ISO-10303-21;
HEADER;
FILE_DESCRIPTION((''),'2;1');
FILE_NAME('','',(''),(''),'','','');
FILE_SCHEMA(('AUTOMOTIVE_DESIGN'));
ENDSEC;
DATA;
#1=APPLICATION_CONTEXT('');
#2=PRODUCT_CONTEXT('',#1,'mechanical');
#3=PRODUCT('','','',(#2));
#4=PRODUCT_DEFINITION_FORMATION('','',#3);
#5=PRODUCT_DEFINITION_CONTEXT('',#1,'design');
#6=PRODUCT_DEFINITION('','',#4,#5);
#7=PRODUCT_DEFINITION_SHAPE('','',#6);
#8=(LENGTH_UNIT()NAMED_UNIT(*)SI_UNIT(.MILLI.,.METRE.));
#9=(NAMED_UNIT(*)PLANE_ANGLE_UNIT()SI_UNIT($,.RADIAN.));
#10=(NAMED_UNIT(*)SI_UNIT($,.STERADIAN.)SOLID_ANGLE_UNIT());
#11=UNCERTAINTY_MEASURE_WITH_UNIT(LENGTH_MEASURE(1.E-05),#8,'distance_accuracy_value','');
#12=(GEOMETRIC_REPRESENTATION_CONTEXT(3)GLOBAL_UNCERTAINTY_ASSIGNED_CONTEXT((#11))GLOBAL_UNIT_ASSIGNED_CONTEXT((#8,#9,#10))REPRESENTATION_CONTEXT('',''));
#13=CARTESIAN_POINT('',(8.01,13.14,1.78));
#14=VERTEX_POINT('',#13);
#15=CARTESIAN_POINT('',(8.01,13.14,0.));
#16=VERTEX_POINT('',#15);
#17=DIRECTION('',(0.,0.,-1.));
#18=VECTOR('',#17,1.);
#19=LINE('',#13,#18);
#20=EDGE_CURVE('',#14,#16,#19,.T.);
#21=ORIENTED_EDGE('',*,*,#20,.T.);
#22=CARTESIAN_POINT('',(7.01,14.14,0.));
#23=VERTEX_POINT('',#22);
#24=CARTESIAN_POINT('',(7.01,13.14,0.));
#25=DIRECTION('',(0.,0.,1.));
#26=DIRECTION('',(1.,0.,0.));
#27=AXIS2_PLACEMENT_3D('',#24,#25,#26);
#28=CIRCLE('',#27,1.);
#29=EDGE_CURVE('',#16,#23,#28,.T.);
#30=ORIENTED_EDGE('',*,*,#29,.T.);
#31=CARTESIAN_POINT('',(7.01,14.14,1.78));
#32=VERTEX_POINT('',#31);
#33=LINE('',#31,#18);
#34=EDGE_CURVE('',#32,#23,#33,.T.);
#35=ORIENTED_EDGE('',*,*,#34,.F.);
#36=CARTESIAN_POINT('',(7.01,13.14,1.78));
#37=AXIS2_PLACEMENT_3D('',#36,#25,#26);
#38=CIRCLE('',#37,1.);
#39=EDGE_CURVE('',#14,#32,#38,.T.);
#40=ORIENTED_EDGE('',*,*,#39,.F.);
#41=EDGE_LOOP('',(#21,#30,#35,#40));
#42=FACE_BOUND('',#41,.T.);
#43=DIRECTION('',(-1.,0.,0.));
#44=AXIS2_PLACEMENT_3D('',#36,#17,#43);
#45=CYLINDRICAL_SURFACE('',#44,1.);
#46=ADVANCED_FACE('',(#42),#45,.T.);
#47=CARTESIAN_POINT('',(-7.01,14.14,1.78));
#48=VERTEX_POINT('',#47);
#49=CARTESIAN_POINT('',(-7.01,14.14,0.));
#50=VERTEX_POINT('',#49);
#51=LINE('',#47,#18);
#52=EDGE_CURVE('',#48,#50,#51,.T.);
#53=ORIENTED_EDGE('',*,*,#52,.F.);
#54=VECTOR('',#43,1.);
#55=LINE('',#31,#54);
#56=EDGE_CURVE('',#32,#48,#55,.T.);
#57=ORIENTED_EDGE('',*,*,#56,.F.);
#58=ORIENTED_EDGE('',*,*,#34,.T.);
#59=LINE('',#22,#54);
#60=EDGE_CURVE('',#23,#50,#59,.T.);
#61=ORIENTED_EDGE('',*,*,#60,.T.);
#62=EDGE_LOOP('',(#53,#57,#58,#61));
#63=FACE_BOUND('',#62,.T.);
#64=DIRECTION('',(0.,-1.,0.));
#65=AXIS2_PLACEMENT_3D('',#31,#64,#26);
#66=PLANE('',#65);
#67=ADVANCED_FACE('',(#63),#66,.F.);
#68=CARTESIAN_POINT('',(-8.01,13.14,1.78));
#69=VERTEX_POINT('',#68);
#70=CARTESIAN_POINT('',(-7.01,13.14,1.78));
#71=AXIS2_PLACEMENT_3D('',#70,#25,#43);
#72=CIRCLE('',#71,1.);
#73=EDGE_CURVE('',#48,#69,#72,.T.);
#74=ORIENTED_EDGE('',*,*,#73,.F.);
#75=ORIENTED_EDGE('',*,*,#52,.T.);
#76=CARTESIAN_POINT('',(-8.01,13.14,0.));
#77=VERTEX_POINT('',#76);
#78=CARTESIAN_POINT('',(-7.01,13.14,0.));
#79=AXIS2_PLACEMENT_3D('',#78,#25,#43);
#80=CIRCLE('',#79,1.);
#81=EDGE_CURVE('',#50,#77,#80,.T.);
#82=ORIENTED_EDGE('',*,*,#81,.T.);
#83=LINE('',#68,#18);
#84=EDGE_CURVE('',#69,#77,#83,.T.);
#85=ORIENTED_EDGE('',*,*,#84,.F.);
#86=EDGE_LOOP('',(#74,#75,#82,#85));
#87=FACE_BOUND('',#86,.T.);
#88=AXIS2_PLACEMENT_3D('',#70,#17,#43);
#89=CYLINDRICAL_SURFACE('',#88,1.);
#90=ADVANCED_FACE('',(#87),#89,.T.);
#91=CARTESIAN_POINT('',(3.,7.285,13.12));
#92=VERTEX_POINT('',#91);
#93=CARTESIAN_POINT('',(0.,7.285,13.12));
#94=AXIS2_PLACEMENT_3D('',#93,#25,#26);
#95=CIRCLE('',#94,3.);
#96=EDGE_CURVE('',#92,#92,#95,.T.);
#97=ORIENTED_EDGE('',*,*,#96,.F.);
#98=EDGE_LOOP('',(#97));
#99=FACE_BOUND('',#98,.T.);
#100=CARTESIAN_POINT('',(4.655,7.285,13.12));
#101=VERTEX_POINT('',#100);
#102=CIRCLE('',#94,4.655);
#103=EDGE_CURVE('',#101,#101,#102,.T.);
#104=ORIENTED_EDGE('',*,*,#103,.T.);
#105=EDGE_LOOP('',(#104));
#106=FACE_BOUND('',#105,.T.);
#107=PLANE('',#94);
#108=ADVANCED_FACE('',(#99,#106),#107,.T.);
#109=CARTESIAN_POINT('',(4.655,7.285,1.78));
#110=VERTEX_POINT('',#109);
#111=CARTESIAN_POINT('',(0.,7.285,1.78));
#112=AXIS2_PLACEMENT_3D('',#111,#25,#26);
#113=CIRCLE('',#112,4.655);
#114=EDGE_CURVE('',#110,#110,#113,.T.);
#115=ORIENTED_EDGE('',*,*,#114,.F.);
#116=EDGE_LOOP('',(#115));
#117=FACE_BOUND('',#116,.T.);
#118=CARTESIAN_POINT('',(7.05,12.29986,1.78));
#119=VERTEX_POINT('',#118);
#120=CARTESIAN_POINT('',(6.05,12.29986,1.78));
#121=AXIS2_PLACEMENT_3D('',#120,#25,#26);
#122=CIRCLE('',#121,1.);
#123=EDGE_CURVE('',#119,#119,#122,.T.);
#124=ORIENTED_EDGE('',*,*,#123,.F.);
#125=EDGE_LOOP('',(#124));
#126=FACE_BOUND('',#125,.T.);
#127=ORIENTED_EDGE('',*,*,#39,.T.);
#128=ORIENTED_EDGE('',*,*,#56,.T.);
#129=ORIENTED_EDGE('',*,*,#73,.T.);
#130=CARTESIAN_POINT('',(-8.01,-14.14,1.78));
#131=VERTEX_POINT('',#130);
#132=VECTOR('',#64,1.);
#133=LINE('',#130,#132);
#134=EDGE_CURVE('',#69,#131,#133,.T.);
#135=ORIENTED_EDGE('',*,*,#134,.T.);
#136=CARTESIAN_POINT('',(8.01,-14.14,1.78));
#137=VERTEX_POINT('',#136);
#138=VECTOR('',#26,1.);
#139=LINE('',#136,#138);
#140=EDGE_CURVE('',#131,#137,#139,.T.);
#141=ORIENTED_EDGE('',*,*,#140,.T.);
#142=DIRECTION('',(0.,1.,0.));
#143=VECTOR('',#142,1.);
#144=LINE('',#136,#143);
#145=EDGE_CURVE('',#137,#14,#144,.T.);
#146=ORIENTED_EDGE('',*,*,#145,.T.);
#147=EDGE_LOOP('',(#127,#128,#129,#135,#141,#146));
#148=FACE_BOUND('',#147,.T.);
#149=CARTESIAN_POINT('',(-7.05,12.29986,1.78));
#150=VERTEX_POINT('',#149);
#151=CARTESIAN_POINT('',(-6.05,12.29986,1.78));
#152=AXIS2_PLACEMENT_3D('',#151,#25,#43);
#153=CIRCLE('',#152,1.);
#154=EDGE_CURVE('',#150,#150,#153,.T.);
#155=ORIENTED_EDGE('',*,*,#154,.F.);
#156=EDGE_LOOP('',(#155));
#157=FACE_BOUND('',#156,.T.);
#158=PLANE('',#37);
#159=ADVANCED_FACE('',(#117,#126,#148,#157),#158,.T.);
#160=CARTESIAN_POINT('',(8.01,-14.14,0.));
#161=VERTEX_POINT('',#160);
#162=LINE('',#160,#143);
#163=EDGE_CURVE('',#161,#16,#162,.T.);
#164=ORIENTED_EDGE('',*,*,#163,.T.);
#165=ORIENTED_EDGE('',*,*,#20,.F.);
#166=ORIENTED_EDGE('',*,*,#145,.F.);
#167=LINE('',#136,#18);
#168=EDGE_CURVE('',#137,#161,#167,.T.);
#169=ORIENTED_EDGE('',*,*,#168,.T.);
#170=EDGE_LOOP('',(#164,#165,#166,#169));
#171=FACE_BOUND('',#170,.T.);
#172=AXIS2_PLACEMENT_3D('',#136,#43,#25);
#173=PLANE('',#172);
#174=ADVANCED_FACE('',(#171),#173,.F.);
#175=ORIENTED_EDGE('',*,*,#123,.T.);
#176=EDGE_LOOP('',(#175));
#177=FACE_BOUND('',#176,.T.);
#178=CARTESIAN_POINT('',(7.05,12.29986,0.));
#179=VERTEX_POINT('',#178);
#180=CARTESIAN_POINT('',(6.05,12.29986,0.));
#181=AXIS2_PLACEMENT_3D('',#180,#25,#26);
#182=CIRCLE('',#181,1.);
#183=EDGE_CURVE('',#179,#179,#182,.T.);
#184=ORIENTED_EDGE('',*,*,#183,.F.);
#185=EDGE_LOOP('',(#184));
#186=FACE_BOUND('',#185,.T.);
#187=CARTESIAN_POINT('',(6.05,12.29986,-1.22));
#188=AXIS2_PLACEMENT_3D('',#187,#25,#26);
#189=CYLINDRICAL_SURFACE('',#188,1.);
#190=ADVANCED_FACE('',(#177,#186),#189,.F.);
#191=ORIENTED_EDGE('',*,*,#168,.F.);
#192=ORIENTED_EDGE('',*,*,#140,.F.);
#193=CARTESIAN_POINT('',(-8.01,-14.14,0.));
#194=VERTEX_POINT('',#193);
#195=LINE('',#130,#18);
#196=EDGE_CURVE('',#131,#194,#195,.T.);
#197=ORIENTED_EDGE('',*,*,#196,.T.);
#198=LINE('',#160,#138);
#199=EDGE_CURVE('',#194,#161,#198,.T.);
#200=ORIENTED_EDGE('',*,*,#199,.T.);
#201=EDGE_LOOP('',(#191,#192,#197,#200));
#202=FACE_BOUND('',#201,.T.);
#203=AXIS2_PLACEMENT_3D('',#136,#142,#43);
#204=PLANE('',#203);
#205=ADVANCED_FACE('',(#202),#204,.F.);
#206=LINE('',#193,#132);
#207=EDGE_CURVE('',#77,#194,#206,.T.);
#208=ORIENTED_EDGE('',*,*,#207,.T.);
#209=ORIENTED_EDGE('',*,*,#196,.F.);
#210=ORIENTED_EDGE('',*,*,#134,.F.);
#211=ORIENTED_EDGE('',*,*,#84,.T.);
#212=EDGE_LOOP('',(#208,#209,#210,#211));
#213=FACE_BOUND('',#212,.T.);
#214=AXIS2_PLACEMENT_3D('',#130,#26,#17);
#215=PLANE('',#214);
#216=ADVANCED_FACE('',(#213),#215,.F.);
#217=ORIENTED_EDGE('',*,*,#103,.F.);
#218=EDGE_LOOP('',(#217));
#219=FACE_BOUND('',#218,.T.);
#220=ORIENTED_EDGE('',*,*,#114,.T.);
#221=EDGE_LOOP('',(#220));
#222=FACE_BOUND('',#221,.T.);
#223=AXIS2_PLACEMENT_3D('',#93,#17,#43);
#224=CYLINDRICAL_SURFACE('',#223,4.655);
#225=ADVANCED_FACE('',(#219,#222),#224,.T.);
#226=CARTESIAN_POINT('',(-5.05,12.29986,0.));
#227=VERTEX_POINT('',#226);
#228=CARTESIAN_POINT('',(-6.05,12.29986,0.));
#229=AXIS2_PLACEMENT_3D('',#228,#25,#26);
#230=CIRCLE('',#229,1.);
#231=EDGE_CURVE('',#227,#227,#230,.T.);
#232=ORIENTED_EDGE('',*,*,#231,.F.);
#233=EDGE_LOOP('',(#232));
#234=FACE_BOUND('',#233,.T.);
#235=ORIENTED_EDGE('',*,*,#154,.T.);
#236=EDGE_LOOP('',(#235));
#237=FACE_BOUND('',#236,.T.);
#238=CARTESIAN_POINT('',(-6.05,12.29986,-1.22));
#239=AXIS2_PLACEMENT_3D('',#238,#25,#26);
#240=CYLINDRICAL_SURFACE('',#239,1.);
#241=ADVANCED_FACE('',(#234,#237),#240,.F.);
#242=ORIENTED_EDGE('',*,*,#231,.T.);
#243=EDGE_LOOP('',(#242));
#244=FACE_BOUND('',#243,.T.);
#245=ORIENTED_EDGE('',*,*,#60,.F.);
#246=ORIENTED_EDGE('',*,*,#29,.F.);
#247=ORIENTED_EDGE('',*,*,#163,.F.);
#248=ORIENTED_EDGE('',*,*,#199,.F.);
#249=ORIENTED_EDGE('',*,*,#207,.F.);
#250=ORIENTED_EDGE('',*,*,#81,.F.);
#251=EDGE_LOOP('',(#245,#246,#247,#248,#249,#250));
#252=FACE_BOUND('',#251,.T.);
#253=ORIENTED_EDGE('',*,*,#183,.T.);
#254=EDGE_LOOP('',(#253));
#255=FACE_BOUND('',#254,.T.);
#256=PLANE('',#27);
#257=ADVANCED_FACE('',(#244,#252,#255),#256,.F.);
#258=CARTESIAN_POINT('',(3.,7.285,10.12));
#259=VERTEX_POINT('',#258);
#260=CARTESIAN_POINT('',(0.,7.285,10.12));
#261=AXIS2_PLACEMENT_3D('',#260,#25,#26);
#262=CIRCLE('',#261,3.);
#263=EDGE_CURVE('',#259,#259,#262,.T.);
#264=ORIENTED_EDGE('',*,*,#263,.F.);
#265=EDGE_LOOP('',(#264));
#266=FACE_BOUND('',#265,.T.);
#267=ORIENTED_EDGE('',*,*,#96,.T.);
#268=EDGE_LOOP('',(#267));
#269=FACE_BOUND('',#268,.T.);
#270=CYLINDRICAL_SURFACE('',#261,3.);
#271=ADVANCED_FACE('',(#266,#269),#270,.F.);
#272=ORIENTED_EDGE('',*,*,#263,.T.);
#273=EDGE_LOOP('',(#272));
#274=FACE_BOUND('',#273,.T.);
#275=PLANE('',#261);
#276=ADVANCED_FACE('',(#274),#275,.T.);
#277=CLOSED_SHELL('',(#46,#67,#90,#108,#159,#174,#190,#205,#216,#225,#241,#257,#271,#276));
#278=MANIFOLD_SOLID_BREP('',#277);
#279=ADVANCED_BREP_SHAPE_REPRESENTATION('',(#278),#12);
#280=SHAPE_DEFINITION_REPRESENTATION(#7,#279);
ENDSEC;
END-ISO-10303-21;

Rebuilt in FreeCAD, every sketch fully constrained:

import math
import FreeCAD as App
import Part
import Sketcher

V = App.Vector

doc = App.newDocument("Part")
body = doc.addObject("PartDesign::Body", "Body")

# Sketch on XY plane
sketch1 = doc.addObject("Sketcher::SketchObject", "Sketch")
body.addObject(sketch1)
sketch1.AttachmentSupport = (doc.XY_Plane, [""])
sketch1.MapMode = "FlatFace"
sketch1.addGeometry(Part.LineSegment(V(-8, -14.1, 0), V(8, -14.1, 0)), False)
sketch1.addGeometry(Part.LineSegment(V(8, -14.1, 0), V(8, 13.1, 0)), False)
sketch1.addGeometry(Part.ArcOfCircle(Part.Circle(V(7, 13.1, 0), V(0, 0, 1), 1), math.radians(0), math.radians(90)), False)
sketch1.addGeometry(Part.LineSegment(V(7, 14.1, 0), V(-7, 14.1, 0)), False)
sketch1.addGeometry(Part.ArcOfCircle(Part.Circle(V(-7, 13.1, 0), V(0, 0, 1), 1), math.radians(90), math.radians(180)), False)
sketch1.addGeometry(Part.LineSegment(V(-8, 13.1, 0), V(-8, -14.1, 0)), False)
sketch1.addConstraint(Sketcher.Constraint("Coincident", 0, 2, 1, 1))
sketch1.addConstraint(Sketcher.Constraint("Tangent", 1, 2, 2, 1))
sketch1.addConstraint(Sketcher.Constraint("Tangent", 2, 2, 3, 1))
sketch1.addConstraint(Sketcher.Constraint("Tangent", 3, 2, 4, 1))
sketch1.addConstraint(Sketcher.Constraint("Tangent", 4, 2, 5, 1))
sketch1.addConstraint(Sketcher.Constraint("Coincident", 5, 2, 0, 1))
sketch1.addConstraint(Sketcher.Constraint("Horizontal", 0))
sketch1.addConstraint(Sketcher.Constraint("Vertical", 1))
sketch1.addConstraint(Sketcher.Constraint("Horizontal", 3))
sketch1.addConstraint(Sketcher.Constraint("Vertical", 5))
sketch1.addConstraint(Sketcher.Constraint("Equal", 2, 4))
sketch1.addConstraint(Sketcher.Constraint("Radius", 2, 1.0))
sketch1.addConstraint(Sketcher.Constraint("DistanceX", 0, 1, 0, 2, 16.02))
sketch1.addConstraint(Sketcher.Constraint("DistanceY", 1, 1, 1, 2, 27.28))
sketch1.addConstraint(Sketcher.Constraint("DistanceX", -1, 1, 2, 3, 7.01))
sketch1.addConstraint(Sketcher.Constraint("DistanceY", -1, 1, 2, 3, 13.14))
pad1 = doc.addObject("PartDesign::Pad", "Pad")
body.addObject(pad1)
pad1.Profile = sketch1
pad1.Length = 1.78

# Sketch on XY plane
sketch2 = doc.addObject("Sketcher::SketchObject", "Sketch001")
body.addObject(sketch2)
sketch2.AttachmentSupport = (doc.XY_Plane, [""])
sketch2.MapMode = "FlatFace"
sketch2.AttachmentOffset = App.Placement(V(0, 0, 1.78), App.Rotation())
sketch2.addGeometry(Part.Circle(V(0, 7.3, 0), V(0, 0, 1), 4.7), False)
sketch2.addConstraint(Sketcher.Constraint("PointOnObject", 0, 3, -2))
sketch2.addConstraint(Sketcher.Constraint("Diameter", 0, 9.31))
sketch2.addConstraint(Sketcher.Constraint("DistanceY", -1, 1, 0, 3, 7.285))
pad2 = doc.addObject("PartDesign::Pad", "Pad001")
body.addObject(pad2)
pad2.Profile = sketch2
pad2.Length = 11.34

# Sketch on XY plane
sketch3 = doc.addObject("Sketcher::SketchObject", "Sketch002")
body.addObject(sketch3)
sketch3.AttachmentSupport = (doc.XY_Plane, [""])
sketch3.MapMode = "FlatFace"
sketch3.AttachmentOffset = App.Placement(V(0, 0, 13.12), App.Rotation())
sketch3.addGeometry(Part.Circle(V(0, 7.3, 0), V(0, 0, 1), 3), False)
sketch3.addConstraint(Sketcher.Constraint("PointOnObject", 0, 3, -2))
sketch3.addConstraint(Sketcher.Constraint("Diameter", 0, 6.0))
sketch3.addConstraint(Sketcher.Constraint("DistanceY", -1, 1, 0, 3, 7.285))
pocket1 = doc.addObject("PartDesign::Pocket", "Pocket")
body.addObject(pocket1)
pocket1.Profile = sketch3
pocket1.Length = 3

# Sketch on XY plane
sketch4 = doc.addObject("Sketcher::SketchObject", "Sketch003")
body.addObject(sketch4)
sketch4.AttachmentSupport = (doc.XY_Plane, [""])
sketch4.MapMode = "FlatFace"
sketch4.AttachmentOffset = App.Placement(V(0, 0, 1.78), App.Rotation())
sketch4.addGeometry(Part.Circle(V(6, 12.3, 0), V(0, 0, 1), 1), False)
sketch4.addGeometry(Part.Circle(V(-6, 12.3, 0), V(0, 0, 1), 1), False)
sketch4.addConstraint(Sketcher.Constraint("Equal", 0, 1))
sketch4.addConstraint(Sketcher.Constraint("Symmetric", 0, 3, 1, 3, -2))
sketch4.addConstraint(Sketcher.Constraint("Diameter", 0, 2.0))
sketch4.addConstraint(Sketcher.Constraint("DistanceX", 1, 3, 0, 3, 12.1))
sketch4.addConstraint(Sketcher.Constraint("DistanceY", -1, 1, 0, 3, 12.29986))
pocket2 = doc.addObject("PartDesign::Pocket", "Pocket001")
body.addObject(pocket2)
pocket2.Profile = sketch4
pocket2.Length = 3

doc.recompute()
